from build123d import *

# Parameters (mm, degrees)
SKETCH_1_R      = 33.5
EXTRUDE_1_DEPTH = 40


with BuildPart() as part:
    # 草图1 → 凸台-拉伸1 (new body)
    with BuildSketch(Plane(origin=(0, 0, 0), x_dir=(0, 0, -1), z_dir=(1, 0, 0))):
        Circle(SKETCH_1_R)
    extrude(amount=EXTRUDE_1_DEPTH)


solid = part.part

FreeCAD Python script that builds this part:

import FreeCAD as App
import Part
import Sketcher
from FreeCAD import Vector
Q = App.Units.Quantity

doc = App.newDocument("Part")
body = doc.addObject("PartDesign::Body", "Body")

sketch1 = doc.addObject("Sketcher::SketchObject", "Sketch")
body.addObject(sketch1)
sketch1.AttachmentSupport = (doc.YZ_Plane, [""])
sketch1.MapMode = "FlatFace"
sketch1.addGeometry(Part.Circle(Vector(0, 0, 0), Vector(0, 0, 1), 34), False)
sketch1.addConstraint(Sketcher.Constraint("Coincident", 0, 3, -1, 1))
sketch1.addConstraint(Sketcher.Constraint("Diameter", 0, Q("67 mm")))
pad1 = doc.addObject("PartDesign::Pad", "Pad")
body.addObject(pad1)
pad1.Profile = sketch1
pad1.Length = 40

doc.recompute()
